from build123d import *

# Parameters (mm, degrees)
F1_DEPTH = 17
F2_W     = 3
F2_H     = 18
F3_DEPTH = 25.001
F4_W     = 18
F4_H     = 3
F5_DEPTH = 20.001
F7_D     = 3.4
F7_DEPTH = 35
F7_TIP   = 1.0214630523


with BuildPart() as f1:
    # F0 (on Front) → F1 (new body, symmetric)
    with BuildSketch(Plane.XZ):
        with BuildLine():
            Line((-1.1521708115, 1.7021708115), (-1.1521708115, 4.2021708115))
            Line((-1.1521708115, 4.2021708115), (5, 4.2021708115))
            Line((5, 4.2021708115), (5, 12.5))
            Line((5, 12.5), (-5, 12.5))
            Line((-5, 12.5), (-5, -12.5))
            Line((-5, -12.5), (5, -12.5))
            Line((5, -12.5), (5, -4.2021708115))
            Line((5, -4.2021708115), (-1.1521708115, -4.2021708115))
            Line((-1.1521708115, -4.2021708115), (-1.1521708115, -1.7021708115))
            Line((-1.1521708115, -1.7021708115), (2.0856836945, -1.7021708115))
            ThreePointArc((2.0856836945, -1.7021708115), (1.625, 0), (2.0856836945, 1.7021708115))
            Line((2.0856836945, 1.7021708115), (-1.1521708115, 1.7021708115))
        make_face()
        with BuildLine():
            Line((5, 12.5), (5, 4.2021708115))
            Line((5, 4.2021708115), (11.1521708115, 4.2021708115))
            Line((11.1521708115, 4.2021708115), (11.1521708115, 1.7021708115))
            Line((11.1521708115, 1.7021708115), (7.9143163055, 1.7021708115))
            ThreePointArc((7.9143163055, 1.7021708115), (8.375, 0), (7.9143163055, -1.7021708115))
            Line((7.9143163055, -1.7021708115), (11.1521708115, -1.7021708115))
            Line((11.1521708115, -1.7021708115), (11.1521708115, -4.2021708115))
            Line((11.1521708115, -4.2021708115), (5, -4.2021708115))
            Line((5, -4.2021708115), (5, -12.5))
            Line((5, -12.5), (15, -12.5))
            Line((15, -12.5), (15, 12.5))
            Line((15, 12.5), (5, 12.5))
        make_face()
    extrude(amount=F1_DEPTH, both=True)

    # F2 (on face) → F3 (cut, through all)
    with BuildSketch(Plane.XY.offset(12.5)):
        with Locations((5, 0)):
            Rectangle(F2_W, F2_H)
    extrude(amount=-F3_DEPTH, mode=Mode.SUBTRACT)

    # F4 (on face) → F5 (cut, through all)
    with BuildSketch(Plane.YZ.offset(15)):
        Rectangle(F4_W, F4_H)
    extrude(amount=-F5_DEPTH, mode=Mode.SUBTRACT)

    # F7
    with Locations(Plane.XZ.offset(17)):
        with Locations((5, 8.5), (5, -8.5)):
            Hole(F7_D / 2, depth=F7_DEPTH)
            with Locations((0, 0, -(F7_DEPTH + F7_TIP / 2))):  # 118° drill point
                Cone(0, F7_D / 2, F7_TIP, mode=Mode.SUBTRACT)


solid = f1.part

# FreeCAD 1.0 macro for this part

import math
import FreeCAD as App
import Part
import Sketcher

V = App.Vector


def add_polygon(sketch, points):
    """Adds a closed chain of lines whose ends are joined by coincident constraints."""
    first, n = sketch.GeometryCount, len(points)
    for a, b in zip(points, points[1:] + points[:1]):
        sketch.addGeometry(Part.LineSegment(App.Vector(*a, 0), App.Vector(*b, 0)), False)
    for i in range(n):
        sketch.addConstraint(Sketcher.Constraint("Coincident", first + i, 2, first + (i + 1) % n, 1))

doc = App.newDocument("Part")
body = doc.addObject("PartDesign::Body", "Body")

sketch1 = body.newObject("Sketcher::SketchObject", "Sketch")
sketch1.AttachmentSupport = (doc.getObject("XZ_Plane"), [""])
sketch1.MapMode = "FlatFace"
add_polygon(sketch1, [(-5, 12.5), (-5, -12.5), (15, -12.5), (15, 12.5)])
sketch1.addGeometry(Part.LineSegment(V(-1.2, 1.7, 0), V(-1.2, 4.2, 0)), False)
sketch1.addGeometry(Part.LineSegment(V(-1.2, 4.2, 0), V(11.2, 4.2, 0)), False)
sketch1.addGeometry(Part.LineSegment(V(11.2, 4.2, 0), V(11.2, 1.7, 0)), False)
sketch1.addGeometry(Part.LineSegment(V(11.2, 1.7, 0), V(7.9, 1.7, 0)), False)
sketch1.addGeometry(Part.ArcOfCircle(Part.Circle(V(5, 0, 0), V(0, 0, 1), 3.4), math.radians(-30), math.radians(30)), False)
sketch1.addGeometry(Part.LineSegment(V(7.9, -1.7, 0), V(11.2, -1.7, 0)), False)
sketch1.addGeometry(Part.LineSegment(V(11.2, -1.7, 0), V(11.2, -4.2, 0)), False)
sketch1.addGeometry(Part.LineSegment(V(11.2, -4.2, 0), V(-1.2, -4.2, 0)), False)
sketch1.addGeometry(Part.LineSegment(V(-1.2, -4.2, 0), V(-1.2, -1.7, 0)), False)
sketch1.addGeometry(Part.LineSegment(V(-1.2, -1.7, 0), V(2.1, -1.7, 0)), False)
sketch1.addGeometry(Part.ArcOfCircle(Part.Circle(V(5, 0, 0), V(0, 0, 1), 3.4), math.radians(150), math.radians(210)), False)
sketch1.addGeometry(Part.LineSegment(V(2.1, 1.7, 0), V(-1.2, 1.7, 0)), False)
sketch1.addConstraint(Sketcher.Constraint("Coincident", 4, 2, 5, 1))
sketch1.addConstraint(Sketcher.Constraint("Coincident", 5, 2, 6, 1))
sketch1.addConstraint(Sketcher.Constraint("Coincident", 6, 2, 7, 1))
sketch1.addConstraint(Sketcher.Constraint("Coincident", 7, 2, 8, 2))
sketch1.addConstraint(Sketcher.Constraint("Coincident", 8, 1, 9, 1))
sketch1.addConstraint(Sketcher.Constraint("Coincident", 9, 2, 10, 1))
sketch1.addConstraint(Sketcher.Constraint("Coincident", 10, 2, 11, 1))
sketch1.addConstraint(Sketcher.Constraint("Coincident", 11, 2, 12, 1))
sketch1.addConstraint(Sketcher.Constraint("Coincident", 12, 2, 13, 1))
sketch1.addConstraint(Sketcher.Constraint("Coincident", 13, 2, 14, 2))
sketch1.addConstraint(Sketcher.Constraint("Coincident", 14, 1, 15, 1))
sketch1.addConstraint(Sketcher.Constraint("Coincident", 15, 2, 4, 1))
sketch1.addConstraint(Sketcher.Constraint("Vertical", 0))
sketch1.addConstraint(Sketcher.Constraint("Horizontal", 1))
sketch1.addConstraint(Sketcher.Constraint("Vertical", 2))
sketch1.addConstraint(Sketcher.Constraint("Horizontal", 3))
sketch1.addConstraint(Sketcher.Constraint("Vertical", 4))
sketch1.addConstraint(Sketcher.Constraint("Horizontal", 5))
sketch1.addConstraint(Sketcher.Constraint("Vertical", 6))
sketch1.addConstraint(Sketcher.Constraint("Horizontal", 7))
sketch1.addConstraint(Sketcher.Constraint("Horizontal", 9))
sketch1.addConstraint(Sketcher.Constraint("Vertical", 10))
sketch1.addConstraint(Sketcher.Constraint("Horizontal", 11))
sketch1.addConstraint(Sketcher.Constraint("Vertical", 12))
sketch1.addConstraint(Sketcher.Constraint("Horizontal", 13))
sketch1.addConstraint(Sketcher.Constraint("Horizontal", 15))
sketch1.addConstraint(Sketcher.Constraint("Coincident", 14, 3, 8, 3))
sketch1.addConstraint(Sketcher.Constraint("Equal", 8, 14))
sketch1.addConstraint(Sketcher.Constraint("Symmetric", 7, 2, 8, 1, -1))
sketch1.addConstraint(Sketcher.Constraint("Symmetric", 5, 2, 10, 2, -1))
sketch1.addConstraint(Sketcher.Constraint("Symmetric", 12, 2, 15, 2, -1))
sketch1.addConstraint(Sketcher.Constraint("Horizontal", 9, 2, 12, 2))
sketch1.addConstraint(Sketcher.Constraint("Equal", 9, 13))
sketch1.addConstraint(Sketcher.Constraint("DistanceX", 1, 1, 1, 2, 20.0))
sketch1.addConstraint(Sketcher.Constraint("DistanceY", 0, 2, 0, 1, 25.0))
sketch1.addConstraint(Sketcher.Constraint("DistanceY", 4, 1, 4, 2, 2.5))
sketch1.addConstraint(Sketcher.Constraint("DistanceX", -1, 1, 8, 3, 5.0))
sketch1.addConstraint(Sketcher.Constraint("DistanceX", 0, 2, -1, 1, 5.0))
sketch1.addConstraint(Sketcher.Constraint("Radius", 8, 3.375))
sketch1.addConstraint(Sketcher.Constraint("DistanceY", 0, 2, -1, 1, 12.5))
sketch1.addConstraint(Sketcher.Constraint("DistanceX", 5, 1, 5, 2, 12.304342))
sketch1.addConstraint(Sketcher.Constraint("DistanceX", 7, 2, 7, 1, 3.237855))
pad1 = body.newObject("PartDesign::Pad", "Pad")
pad1.Profile = sketch1
pad1.Length = 34
pad1.Midplane = True

sketch2 = body.newObject("Sketcher::SketchObject", "Sketch001")
sketch2.AttachmentSupport = (doc.getObject("XY_Plane"), [""])
sketch2.MapMode = "FlatFace"
sketch2.AttachmentOffset = App.Placement(V(0, 0, 12.5), App.Rotation())
add_polygon(sketch2, [(3.5, 9), (3.5, -9), (6.5, -9), (6.5, 9)])
sketch2.addConstraint(Sketcher.Constraint("Vertical", 0))
sketch2.addConstraint(Sketcher.Constraint("Horizontal", 1))
sketch2.addConstraint(Sketcher.Constraint("Vertical", 2))
sketch2.addConstraint(Sketcher.Constraint("Horizontal", 3))
sketch2.addConstraint(Sketcher.Constraint("DistanceX", 1, 1, 1, 2, 3.0))
sketch2.addConstraint(Sketcher.Constraint("DistanceY", 0, 2, 0, 1, 18.0))
sketch2.addConstraint(Sketcher.Constraint("DistanceY", 0, 2, -1, 1, 9.0))
sketch2.addConstraint(Sketcher.Constraint("DistanceX", -1, 1, 0, 2, 3.5))
pocket1 = body.newObject("PartDesign::Pocket", "Pocket")
pocket1.Profile = sketch2
pocket1.Type = "ThroughAll"

sketch3 = body.newObject("Sketcher::SketchObject", "Sketch002")
sketch3.AttachmentSupport = (doc.getObject("YZ_Plane"), [""])
sketch3.MapMode = "FlatFace"
sketch3.AttachmentOffset = App.Placement(V(0, 0, 15), App.Rotation())
add_polygon(sketch3, [(-9, 1.5), (-9, -1.5), (9, -1.5), (9, 1.5)])
sketch3.addConstraint(Sketcher.Constraint("Vertical", 0))
sketch3.addConstraint(Sketcher.Constraint("Horizontal", 1))
sketch3.addConstraint(Sketcher.Constraint("Vertical", 2))
sketch3.addConstraint(Sketcher.Constraint("Horizontal", 3))
sketch3.addConstraint(Sketcher.Constraint("Symmetric", 0, 2, 2, 2, -1, 1))
sketch3.addConstraint(Sketcher.Constraint("DistanceX", 1, 1, 1, 2, 18.0))
sketch3.addConstraint(Sketcher.Constraint("DistanceY", 0, 2, 0, 1, 3.0))
pocket2 = body.newObject("PartDesign::Pocket", "Pocket001")
pocket2.Profile = sketch3
pocket2.Type = "ThroughAll"

sketch4 = body.newObject("Sketcher::SketchObject", "Sketch003")
sketch4.AttachmentSupport = (doc.getObject("XZ_Plane"), [""])
sketch4.MapMode = "FlatFace"
sketch4.AttachmentOffset = App.Placement(V(0, 0, 17), App.Rotation())
sketch4.addGeometry(Part.Circle(V(5, 8.5, 0), V(0, 0, 1), 1.7), False)
sketch4.addGeometry(Part.Circle(V(5, -8.5, 0), V(0, 0, 1), 1.7), False)
sketch4.addConstraint(Sketcher.Constraint("Equal", 0, 1))
sketch4.addConstraint(Sketcher.Constraint("Symmetric", 0, 3, 1, 3, -1))
sketch4.addConstraint(Sketcher.Constraint("Diameter", 0, 3.4))
sketch4.addConstraint(Sketcher.Constraint("DistanceX", -1, 1, 0, 3, 5.0))
sketch4.addConstraint(Sketcher.Constraint("DistanceY", 1, 3, 0, 3, 17.0))
doc.recompute()
hole = body.newObject("PartDesign::Hole", "Hole")
hole.Profile = sketch4
hole.ThreadType = "None"
hole.Diameter = 3.4
hole.DepthType = "Dimension"
hole.Depth = 35
hole.DrillPoint = "Angled"
hole.DrillPointAngle = 118

doc.recompute()
